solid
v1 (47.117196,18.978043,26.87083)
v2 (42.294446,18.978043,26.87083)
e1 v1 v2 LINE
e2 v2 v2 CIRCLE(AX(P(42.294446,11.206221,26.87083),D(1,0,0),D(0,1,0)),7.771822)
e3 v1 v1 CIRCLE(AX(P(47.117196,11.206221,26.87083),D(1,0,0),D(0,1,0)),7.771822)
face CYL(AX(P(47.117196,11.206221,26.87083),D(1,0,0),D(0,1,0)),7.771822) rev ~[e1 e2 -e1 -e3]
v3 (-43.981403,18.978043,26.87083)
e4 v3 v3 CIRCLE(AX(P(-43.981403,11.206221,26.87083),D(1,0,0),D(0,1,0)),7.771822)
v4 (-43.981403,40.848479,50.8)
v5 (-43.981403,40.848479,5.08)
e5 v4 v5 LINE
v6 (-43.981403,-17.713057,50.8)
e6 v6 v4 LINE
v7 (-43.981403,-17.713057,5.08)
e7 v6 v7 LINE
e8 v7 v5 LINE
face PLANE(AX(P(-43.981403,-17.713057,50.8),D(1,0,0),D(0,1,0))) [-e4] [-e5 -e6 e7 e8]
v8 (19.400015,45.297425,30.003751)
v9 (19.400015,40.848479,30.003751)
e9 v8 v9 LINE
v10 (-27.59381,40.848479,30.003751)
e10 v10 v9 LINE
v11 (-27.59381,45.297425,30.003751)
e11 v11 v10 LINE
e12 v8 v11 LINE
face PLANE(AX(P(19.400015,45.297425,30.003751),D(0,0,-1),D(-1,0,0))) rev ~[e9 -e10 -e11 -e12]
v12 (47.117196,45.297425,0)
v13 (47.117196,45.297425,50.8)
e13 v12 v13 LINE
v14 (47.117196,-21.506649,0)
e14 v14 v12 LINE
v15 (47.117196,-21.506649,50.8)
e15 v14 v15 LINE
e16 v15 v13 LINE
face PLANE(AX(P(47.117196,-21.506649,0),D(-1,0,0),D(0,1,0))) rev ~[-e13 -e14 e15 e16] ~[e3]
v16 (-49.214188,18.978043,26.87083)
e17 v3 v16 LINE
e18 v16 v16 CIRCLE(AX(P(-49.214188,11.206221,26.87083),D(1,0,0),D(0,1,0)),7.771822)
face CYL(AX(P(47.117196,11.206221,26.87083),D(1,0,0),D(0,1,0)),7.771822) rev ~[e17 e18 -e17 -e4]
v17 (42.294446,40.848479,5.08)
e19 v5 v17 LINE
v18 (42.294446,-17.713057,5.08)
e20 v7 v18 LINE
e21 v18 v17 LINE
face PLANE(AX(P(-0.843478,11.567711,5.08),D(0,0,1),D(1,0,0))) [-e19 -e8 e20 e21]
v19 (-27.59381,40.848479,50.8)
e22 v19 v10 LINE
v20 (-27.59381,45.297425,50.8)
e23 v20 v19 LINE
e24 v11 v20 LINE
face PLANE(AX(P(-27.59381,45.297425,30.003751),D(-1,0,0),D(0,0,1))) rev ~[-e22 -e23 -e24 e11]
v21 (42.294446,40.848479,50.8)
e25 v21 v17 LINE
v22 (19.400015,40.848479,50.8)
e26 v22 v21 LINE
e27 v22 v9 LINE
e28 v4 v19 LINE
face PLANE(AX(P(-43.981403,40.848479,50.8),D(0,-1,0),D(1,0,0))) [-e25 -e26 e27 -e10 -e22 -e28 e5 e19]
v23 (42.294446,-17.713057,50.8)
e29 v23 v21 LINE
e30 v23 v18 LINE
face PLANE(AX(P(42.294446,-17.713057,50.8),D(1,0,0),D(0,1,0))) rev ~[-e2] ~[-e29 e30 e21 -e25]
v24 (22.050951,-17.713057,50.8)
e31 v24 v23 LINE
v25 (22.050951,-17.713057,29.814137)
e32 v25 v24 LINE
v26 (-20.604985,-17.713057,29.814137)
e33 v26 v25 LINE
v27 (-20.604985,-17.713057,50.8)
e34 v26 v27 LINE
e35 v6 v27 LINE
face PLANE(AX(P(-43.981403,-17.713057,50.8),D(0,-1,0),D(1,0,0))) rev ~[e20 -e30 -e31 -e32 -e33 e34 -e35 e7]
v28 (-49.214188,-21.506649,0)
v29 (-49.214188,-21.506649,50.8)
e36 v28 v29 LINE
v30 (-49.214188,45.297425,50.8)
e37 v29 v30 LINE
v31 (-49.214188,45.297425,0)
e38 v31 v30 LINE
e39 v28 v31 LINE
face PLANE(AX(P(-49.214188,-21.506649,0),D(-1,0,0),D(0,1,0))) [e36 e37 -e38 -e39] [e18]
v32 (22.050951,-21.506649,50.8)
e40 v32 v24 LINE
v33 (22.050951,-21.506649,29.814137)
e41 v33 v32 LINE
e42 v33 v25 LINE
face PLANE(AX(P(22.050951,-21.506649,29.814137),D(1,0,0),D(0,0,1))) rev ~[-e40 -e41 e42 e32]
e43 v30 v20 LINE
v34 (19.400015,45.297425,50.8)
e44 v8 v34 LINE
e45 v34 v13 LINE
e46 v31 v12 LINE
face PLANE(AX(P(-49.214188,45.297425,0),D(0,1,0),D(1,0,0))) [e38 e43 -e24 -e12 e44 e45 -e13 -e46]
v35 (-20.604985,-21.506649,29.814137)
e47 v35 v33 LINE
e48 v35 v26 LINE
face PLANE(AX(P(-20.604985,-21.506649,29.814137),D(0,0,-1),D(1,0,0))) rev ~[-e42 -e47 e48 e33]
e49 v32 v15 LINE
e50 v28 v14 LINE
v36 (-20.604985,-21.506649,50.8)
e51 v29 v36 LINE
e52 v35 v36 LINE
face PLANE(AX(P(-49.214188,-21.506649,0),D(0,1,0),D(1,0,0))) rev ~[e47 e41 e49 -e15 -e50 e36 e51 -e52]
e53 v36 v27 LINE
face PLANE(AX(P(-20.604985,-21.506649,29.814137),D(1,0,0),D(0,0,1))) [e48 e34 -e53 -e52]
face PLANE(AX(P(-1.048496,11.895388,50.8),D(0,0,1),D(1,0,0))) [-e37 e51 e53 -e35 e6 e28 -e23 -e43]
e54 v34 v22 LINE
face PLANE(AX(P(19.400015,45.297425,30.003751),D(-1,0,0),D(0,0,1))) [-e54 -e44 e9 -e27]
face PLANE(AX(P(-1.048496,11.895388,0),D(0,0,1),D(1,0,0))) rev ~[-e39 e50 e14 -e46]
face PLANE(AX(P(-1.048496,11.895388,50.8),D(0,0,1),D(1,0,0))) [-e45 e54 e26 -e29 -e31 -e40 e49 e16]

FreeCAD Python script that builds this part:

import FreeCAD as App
import Part
import Sketcher

V = App.Vector
Q = App.Units.Quantity

doc = App.newDocument("Part")
body = doc.addObject("PartDesign::Body", "Body")

# Sketch on XY plane
sketch1 = body.newObject("Sketcher::SketchObject", "Sketch")
sketch1.AttachmentSupport = (doc.getObject("XY_Plane"), [""])
sketch1.MapMode = "FlatFace"
sketch1.addGeometry(Part.LineSegment(V(-49.214188, 45.297425, 0), V(-49.214188, -21.506649, 0)), False)
sketch1.addGeometry(Part.LineSegment(V(-49.214188, -21.506649, 0), V(47.117196, -21.506649, 0)), False)
sketch1.addGeometry(Part.LineSegment(V(47.117196, -21.506649, 0), V(47.117196, 45.297425, 0)), False)
sketch1.addGeometry(Part.LineSegment(V(47.117196, 45.297425, 0), V(-49.214188, 45.297425, 0)), False)
sketch1.addConstraint(Sketcher.Constraint("Coincident", 0, 2, 1, 1))
sketch1.addConstraint(Sketcher.Constraint("Coincident", 1, 2, 2, 1))
sketch1.addConstraint(Sketcher.Constraint("Coincident", 2, 2, 3, 1))
sketch1.addConstraint(Sketcher.Constraint("Coincident", 3, 2, 0, 1))
sketch1.addConstraint(Sketcher.Constraint("Vertical", 0))
sketch1.addConstraint(Sketcher.Constraint("Horizontal", 1))
sketch1.addConstraint(Sketcher.Constraint("Vertical", 2))
sketch1.addConstraint(Sketcher.Constraint("Horizontal", 3))
sketch1.addConstraint(Sketcher.Constraint("DistanceX", 1, 1, 1, 2, Q("96.331384 mm")))
sketch1.addConstraint(Sketcher.Constraint("DistanceY", 0, 2, 0, 1, Q("66.804074 mm")))
sketch1.addConstraint(Sketcher.Constraint("DistanceX", 0, 2, -1, 1, Q("49.214188 mm")))
sketch1.addConstraint(Sketcher.Constraint("DistanceY", 0, 2, -1, 1, Q("21.506649 mm")))
pad1 = body.newObject("PartDesign::Pad", "Pad")
pad1.Profile = sketch1
pad1.Length = Q("2 in")

# Sketch on XY plane
sketch2 = body.newObject("Sketcher::SketchObject", "Sketch001")
sketch2.AttachmentSupport = (doc.getObject("XY_Plane"), [""])
sketch2.MapMode = "FlatFace"
sketch2.AttachmentOffset = App.Placement(V(0, 0, 2 * 25.4), App.Rotation())
sketch2.addGeometry(Part.LineSegment(V(-43.981403, 40.848479, 0), V(-43.981403, -17.713057, 0)), False)
sketch2.addGeometry(Part.LineSegment(V(-43.981403, -17.713057, 0), V(42.294446, -17.713057, 0)), False)
sketch2.addGeometry(Part.LineSegment(V(42.294446, -17.713057, 0), V(42.294446, 40.848479, 0)), False)
sketch2.addGeometry(Part.LineSegment(V(42.294446, 40.848479, 0), V(-43.981403, 40.848479, 0)), False)
sketch2.addConstraint(Sketcher.Constraint("Coincident", 0, 2, 1, 1))
sketch2.addConstraint(Sketcher.Constraint("Coincident", 1, 2, 2, 1))
sketch2.addConstraint(Sketcher.Constraint("Coincident", 2, 2, 3, 1))
sketch2.addConstraint(Sketcher.Constraint("Coincident", 3, 2, 0, 1))
sketch2.addConstraint(Sketcher.Constraint("Vertical", 0))
sketch2.addConstraint(Sketcher.Constraint("Horizontal", 1))
sketch2.addConstraint(Sketcher.Constraint("Vertical", 2))
sketch2.addConstraint(Sketcher.Constraint("Horizontal", 3))
sketch2.addConstraint(Sketcher.Constraint("DistanceX", 1, 1, 1, 2, Q("86.275849 mm")))
sketch2.addConstraint(Sketcher.Constraint("DistanceY", 0, 2, 0, 1, Q("58.561536 mm")))
sketch2.addConstraint(Sketcher.Constraint("DistanceY", -1, 1, 2, 2, Q("40.848479 mm")))
sketch2.addConstraint(Sketcher.Constraint("DistanceX", 0, 2, -1, 1, Q("43.981403 mm")))
pocket1 = body.newObject("PartDesign::Pocket", "Pocket")
pocket1.Profile = sketch2
pocket1.Length = Q("1.8 in")

# Sketch on XZ plane
sketch3 = body.newObject("Sketcher::SketchObject", "Sketch002")
sketch3.AttachmentSupport = (doc.getObject("XZ_Plane"), [""])
sketch3.MapMode = "FlatFace"
sketch3.AttachmentOffset = App.Placement(V(0, 0, 21.506649), App.Rotation())
sketch3.addGeometry(Part.LineSegment(V(-20.604985, 50.8, 0), V(-20.604985, 29.814137, 0)), False)
sketch3.addGeometry(Part.LineSegment(V(-20.604985, 29.814137, 0), V(22.050951, 29.814137, 0)), False)
sketch3.addGeometry(Part.LineSegment(V(22.050951, 29.814137, 0), V(22.050951, 50.8, 0)), False)
sketch3.addGeometry(Part.LineSegment(V(22.050951, 50.8, 0), V(-20.604985, 50.8, 0)), False)
sketch3.addConstraint(Sketcher.Constraint("Coincident", 0, 2, 1, 1))
sketch3.addConstraint(Sketcher.Constraint("Coincident", 1, 2, 2, 1))
sketch3.addConstraint(Sketcher.Constraint("Coincident", 2, 2, 3, 1))
sketch3.addConstraint(Sketcher.Constraint("Coincident", 3, 2, 0, 1))
sketch3.addConstraint(Sketcher.Constraint("Vertical", 0))
sketch3.addConstraint(Sketcher.Constraint("Horizontal", 1))
sketch3.addConstraint(Sketcher.Constraint("Vertical", 2))
sketch3.addConstraint(Sketcher.Constraint("Horizontal", 3))
sketch3.addConstraint(Sketcher.Constraint("DistanceY", -1, 1, 2, 2, Q("2 in")))
sketch3.addConstraint(Sketcher.Constraint("DistanceX", 1, 1, 1, 2, Q("42.655936 mm")))
sketch3.addConstraint(Sketcher.Constraint("DistanceY", 0, 2, 0, 1, Q("20.985863 mm")))
sketch3.addConstraint(Sketcher.Constraint("DistanceX", -1, 1, 1, 2, Q("22.050951 mm")))
pocket2 = body.newObject("PartDesign::Pocket", "Pocket001")
pocket2.Profile = sketch3
pocket2.Length = Q("1 in")

# Sketch on XZ plane
sketch4 = body.newObject("Sketcher::SketchObject", "Sketch003")
sketch4.AttachmentSupport = (doc.getObject("XZ_Plane"), [""])
sketch4.MapMode = "FlatFace"
sketch4.AttachmentOffset = App.Placement(V(0, 0, -45.297425), App.Rotation())
sketch4.addGeometry(Part.LineSegment(V(19.400015, 50.8, 0), V(19.400015, 30.003751, 0)), False)
sketch4.addGeometry(Part.LineSegment(V(19.400015, 30.003751, 0), V(-27.59381, 30.003751, 0)), False)
sketch4.addGeometry(Part.LineSegment(V(-27.59381, 30.003751, 0), V(-27.59381, 50.8, 0)), False)
sketch4.addGeometry(Part.LineSegment(V(-27.59381, 50.8, 0), V(19.400015, 50.8, 0)), False)
sketch4.addConstraint(Sketcher.Constraint("Coincident", 0, 2, 1, 1))
sketch4.addConstraint(Sketcher.Constraint("Coincident", 1, 2, 2, 1))
sketch4.addConstraint(Sketcher.Constraint("Coincident", 2, 2, 3, 1))
sketch4.addConstraint(Sketcher.Constraint("Coincident", 3, 2, 0, 1))
sketch4.addConstraint(Sketcher.Constraint("Vertical", 0))
sketch4.addConstraint(Sketcher.Constraint("Horizontal", 1))
sketch4.addConstraint(Sketcher.Constraint("Vertical", 2))
sketch4.addConstraint(Sketcher.Constraint("Horizontal", 3))
sketch4.addConstraint(Sketcher.Constraint("DistanceY", -1, 1, 2, 2, Q("2 in")))
sketch4.addConstraint(Sketcher.Constraint("DistanceY", 0, 2, 0, 1, Q("20.796249 mm")))
sketch4.addConstraint(Sketcher.Constraint("DistanceX", 1, 2, 1, 1, Q("46.993826 mm")))
sketch4.addConstraint(Sketcher.Constraint("DistanceX", 1, 2, -1, 1, Q("27.59381 mm")))
pocket3 = body.newObject("PartDesign::Pocket", "Pocket002")
pocket3.Profile = sketch4
pocket3.Length = Q("1 in")
pocket3.Reversed = True

# Sketch on YZ plane
sketch5 = body.newObject("Sketcher::SketchObject", "Sketch004")
sketch5.AttachmentSupport = (doc.getObject("YZ_Plane"), [""])
sketch5.MapMode = "FlatFace"
sketch5.AttachmentOffset = App.Placement(V(0, 0, 47.117196), App.Rotation())
sketch5.addGeometry(Part.Circle(V(11.206221, 26.87083, 0), V(0, 0, 1), 7.771822), False)
sketch5.addConstraint(Sketcher.Constraint("Diameter", 0, Q("15.543644 mm")))
sketch5.addConstraint(Sketcher.Constraint("DistanceX", -1, 1, 0, 3, Q("11.206221 mm")))
sketch5.addConstraint(Sketcher.Constraint("DistanceY", -1, 1, 0, 3, Q("26.87083 mm")))
pocket4 = body.newObject("PartDesign::Pocket", "Pocket003")
pocket4.Profile = sketch5
pocket4.Length = Q("5 in")

doc.recompute()
